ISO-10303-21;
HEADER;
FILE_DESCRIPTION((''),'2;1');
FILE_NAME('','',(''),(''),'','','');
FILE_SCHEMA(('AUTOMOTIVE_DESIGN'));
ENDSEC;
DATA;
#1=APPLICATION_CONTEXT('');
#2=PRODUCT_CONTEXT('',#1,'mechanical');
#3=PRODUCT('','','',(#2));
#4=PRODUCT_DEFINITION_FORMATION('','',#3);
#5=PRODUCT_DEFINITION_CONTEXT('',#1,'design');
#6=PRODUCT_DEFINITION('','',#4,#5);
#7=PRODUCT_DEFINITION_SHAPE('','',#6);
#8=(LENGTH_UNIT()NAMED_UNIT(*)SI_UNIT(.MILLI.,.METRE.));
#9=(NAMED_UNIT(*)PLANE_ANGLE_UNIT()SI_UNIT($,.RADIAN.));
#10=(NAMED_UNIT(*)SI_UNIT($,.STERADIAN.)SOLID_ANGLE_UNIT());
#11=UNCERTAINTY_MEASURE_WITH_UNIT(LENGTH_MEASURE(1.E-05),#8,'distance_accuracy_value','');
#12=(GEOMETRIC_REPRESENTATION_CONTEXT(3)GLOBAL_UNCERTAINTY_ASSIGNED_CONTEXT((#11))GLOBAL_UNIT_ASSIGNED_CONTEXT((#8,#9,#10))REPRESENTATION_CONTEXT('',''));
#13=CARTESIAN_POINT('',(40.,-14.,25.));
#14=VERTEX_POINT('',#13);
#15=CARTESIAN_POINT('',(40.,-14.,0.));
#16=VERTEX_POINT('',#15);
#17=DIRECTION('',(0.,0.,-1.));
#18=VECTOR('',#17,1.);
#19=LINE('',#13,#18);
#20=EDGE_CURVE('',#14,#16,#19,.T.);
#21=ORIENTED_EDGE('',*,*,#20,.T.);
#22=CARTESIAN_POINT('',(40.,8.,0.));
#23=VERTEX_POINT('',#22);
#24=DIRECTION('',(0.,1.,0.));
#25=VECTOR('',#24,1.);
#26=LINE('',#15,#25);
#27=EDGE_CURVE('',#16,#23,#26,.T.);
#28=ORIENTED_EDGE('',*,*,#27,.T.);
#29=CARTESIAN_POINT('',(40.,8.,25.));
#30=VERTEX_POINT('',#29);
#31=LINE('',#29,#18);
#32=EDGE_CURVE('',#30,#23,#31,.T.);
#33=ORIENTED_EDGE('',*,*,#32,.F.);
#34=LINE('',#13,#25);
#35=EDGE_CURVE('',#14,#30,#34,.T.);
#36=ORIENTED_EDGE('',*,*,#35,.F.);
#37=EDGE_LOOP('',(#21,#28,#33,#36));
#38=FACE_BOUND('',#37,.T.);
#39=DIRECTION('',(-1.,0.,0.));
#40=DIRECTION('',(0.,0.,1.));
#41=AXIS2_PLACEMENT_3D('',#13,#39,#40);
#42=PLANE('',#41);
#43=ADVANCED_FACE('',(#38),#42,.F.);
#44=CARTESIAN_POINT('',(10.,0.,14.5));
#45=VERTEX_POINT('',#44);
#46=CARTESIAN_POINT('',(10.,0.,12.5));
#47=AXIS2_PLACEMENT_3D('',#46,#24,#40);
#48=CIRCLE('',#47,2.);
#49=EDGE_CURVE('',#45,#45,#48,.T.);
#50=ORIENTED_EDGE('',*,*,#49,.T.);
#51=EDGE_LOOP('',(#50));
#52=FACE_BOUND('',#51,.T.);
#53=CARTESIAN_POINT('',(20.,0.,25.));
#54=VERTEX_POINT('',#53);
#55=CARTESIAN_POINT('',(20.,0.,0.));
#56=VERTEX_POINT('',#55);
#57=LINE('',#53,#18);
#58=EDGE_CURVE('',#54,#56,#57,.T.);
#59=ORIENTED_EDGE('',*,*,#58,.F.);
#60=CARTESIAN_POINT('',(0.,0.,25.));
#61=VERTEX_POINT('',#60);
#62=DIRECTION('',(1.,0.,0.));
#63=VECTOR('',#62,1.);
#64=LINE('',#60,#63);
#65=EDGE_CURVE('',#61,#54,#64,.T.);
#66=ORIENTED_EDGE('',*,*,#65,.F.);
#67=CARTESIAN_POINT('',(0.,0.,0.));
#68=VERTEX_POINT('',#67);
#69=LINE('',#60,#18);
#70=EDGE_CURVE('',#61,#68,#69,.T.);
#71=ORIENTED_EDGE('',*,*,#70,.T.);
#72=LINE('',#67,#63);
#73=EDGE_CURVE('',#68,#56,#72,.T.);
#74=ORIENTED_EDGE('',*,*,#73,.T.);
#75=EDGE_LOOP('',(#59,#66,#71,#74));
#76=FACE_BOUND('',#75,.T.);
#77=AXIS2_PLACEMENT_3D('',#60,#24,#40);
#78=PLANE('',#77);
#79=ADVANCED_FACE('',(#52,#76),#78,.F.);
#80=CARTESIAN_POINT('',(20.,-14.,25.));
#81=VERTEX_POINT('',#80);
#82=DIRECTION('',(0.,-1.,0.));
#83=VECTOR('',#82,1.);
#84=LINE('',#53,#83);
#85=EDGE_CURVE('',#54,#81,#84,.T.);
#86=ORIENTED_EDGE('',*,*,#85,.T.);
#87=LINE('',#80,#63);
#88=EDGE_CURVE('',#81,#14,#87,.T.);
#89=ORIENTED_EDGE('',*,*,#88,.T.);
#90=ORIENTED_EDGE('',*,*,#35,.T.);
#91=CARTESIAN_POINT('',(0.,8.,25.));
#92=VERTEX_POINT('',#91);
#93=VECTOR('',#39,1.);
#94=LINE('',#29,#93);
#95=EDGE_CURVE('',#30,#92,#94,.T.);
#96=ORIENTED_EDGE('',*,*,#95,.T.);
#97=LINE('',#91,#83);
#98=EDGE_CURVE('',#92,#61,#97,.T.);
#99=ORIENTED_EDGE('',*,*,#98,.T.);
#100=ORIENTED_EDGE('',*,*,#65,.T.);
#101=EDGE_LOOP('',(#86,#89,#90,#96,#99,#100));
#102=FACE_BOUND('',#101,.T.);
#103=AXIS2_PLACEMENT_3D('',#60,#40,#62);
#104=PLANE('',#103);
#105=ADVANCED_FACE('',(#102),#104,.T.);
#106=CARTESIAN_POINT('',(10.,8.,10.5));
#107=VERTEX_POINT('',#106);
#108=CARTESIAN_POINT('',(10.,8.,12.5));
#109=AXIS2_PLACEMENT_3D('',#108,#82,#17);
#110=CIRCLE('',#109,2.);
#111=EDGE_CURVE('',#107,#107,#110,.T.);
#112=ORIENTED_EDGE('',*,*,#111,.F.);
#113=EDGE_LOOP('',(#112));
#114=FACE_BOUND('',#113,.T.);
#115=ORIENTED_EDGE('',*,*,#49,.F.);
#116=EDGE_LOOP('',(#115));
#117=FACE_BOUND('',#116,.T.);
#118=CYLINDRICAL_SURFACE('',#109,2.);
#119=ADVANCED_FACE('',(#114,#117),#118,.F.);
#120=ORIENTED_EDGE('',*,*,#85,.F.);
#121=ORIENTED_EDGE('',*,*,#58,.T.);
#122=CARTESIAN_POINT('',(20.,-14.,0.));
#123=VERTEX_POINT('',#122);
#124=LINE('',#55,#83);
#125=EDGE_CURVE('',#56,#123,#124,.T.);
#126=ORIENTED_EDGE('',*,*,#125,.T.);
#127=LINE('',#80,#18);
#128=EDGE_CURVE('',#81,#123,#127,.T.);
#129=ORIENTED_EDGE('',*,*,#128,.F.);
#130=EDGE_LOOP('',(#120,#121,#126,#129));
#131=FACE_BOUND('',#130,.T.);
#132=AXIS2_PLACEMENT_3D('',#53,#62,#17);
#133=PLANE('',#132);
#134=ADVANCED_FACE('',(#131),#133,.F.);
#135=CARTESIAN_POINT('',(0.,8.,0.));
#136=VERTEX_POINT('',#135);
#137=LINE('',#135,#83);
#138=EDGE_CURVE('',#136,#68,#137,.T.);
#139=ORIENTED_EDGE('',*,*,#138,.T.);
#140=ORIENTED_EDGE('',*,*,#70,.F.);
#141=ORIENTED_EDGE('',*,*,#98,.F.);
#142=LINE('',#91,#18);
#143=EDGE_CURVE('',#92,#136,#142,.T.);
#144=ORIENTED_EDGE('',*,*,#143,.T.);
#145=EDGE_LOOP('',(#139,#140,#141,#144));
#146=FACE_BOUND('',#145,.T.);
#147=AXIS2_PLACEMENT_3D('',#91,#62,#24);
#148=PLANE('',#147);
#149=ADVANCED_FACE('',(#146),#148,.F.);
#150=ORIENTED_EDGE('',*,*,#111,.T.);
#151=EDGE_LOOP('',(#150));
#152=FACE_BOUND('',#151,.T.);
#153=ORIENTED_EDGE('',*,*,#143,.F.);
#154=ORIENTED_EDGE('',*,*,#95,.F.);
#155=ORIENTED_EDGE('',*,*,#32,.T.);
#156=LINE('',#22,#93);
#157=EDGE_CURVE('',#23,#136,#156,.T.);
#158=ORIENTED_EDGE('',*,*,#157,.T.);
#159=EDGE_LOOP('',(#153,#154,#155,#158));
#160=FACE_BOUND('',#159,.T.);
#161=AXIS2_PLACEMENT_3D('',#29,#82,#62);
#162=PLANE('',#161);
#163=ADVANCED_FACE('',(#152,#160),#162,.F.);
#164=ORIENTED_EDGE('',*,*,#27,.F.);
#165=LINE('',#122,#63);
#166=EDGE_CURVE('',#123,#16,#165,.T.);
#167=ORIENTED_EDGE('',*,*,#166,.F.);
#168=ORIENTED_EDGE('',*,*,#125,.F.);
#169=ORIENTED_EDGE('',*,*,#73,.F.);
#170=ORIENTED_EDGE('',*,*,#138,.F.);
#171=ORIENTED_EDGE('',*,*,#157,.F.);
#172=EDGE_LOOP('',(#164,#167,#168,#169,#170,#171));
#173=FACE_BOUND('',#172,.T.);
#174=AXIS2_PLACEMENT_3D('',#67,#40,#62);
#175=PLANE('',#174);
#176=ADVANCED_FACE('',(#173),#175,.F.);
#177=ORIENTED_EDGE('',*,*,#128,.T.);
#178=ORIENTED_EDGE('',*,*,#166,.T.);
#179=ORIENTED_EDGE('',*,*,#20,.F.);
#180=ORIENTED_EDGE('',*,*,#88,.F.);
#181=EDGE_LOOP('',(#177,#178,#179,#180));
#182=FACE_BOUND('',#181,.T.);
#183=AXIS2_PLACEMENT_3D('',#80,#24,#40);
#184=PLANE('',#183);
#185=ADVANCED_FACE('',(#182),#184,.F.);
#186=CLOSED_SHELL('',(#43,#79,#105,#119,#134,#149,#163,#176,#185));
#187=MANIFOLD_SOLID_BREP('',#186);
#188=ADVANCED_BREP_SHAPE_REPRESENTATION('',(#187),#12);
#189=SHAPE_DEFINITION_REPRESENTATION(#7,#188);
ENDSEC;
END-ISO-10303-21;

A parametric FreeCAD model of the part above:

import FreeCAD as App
import Part
import Sketcher

V = App.Vector

doc = App.newDocument("Part")
body = doc.addObject("PartDesign::Body", "Body")

# Sketch on XY plane
sketch1 = doc.addObject("Sketcher::SketchObject", "Sketch")
body.addObject(sketch1)
sketch1.AttachmentSupport = (doc.XY_Plane, [""])
sketch1.MapMode = "FlatFace"
sketch1.addGeometry(Part.LineSegment(V(0, 0, 0), V(20, 0, 0)), False)
sketch1.addGeometry(Part.LineSegment(V(20, 0, 0), V(20, -14, 0)), False)
sketch1.addGeometry(Part.LineSegment(V(20, -14, 0), V(40, -14, 0)), False)
sketch1.addGeometry(Part.LineSegment(V(40, -14, 0), V(40, 8, 0)), False)
sketch1.addGeometry(Part.LineSegment(V(40, 8, 0), V(0, 8, 0)), False)
sketch1.addGeometry(Part.LineSegment(V(0, 8, 0), V(0, 0, 0)), False)
sketch1.addConstraint(Sketcher.Constraint("Coincident", 0, 2, 1, 1))
sketch1.addConstraint(Sketcher.Constraint("Coincident", 1, 2, 2, 1))
sketch1.addConstraint(Sketcher.Constraint("Coincident", 2, 2, 3, 1))
sketch1.addConstraint(Sketcher.Constraint("Coincident", 3, 2, 4, 1))
sketch1.addConstraint(Sketcher.Constraint("Coincident", 4, 2, 5, 1))
sketch1.addConstraint(Sketcher.Constraint("Coincident", 5, 2, 0, 1))
sketch1.addConstraint(Sketcher.Constraint("Horizontal", 0))
sketch1.addConstraint(Sketcher.Constraint("Vertical", 1))
sketch1.addConstraint(Sketcher.Constraint("Horizontal", 2))
sketch1.addConstraint(Sketcher.Constraint("Vertical", 3))
sketch1.addConstraint(Sketcher.Constraint("Horizontal", 4))
sketch1.addConstraint(Sketcher.Constraint("Vertical", 5))
sketch1.addConstraint(Sketcher.Constraint("Coincident", 5, 2, -1, 1))
sketch1.addConstraint(Sketcher.Constraint("Equal", 0, 2))
sketch1.addConstraint(Sketcher.Constraint("DistanceX", 0, 1, 0, 2, 20.0))
sketch1.addConstraint(Sketcher.Constraint("DistanceY", 1, 2, 1, 1, 14.0))
sketch1.addConstraint(Sketcher.Constraint("DistanceY", 3, 1, 3, 2, 22.0))
pad1 = doc.addObject("PartDesign::Pad", "Pad")
body.addObject(pad1)
pad1.Profile = sketch1
pad1.Length = 25

# Sketch on XZ plane
sketch2 = doc.addObject("Sketcher::SketchObject", "Sketch001")
body.addObject(sketch2)
sketch2.AttachmentSupport = (doc.XZ_Plane, [""])
sketch2.MapMode = "FlatFace"
sketch2.addGeometry(Part.Circle(V(10, 12.5, 0), V(0, 0, 1), 2), False)
sketch2.addConstraint(Sketcher.Constraint("Diameter", 0, 4.0))
sketch2.addConstraint(Sketcher.Constraint("DistanceX", -1, 1, 0, 3, 10.0))
sketch2.addConstraint(Sketcher.Constraint("DistanceY", -1, 1, 0, 3, 12.5))
pocket1 = doc.addObject("PartDesign::Pocket", "Pocket")
body.addObject(pocket1)
pocket1.Profile = sketch2
pocket1.Type = "ThroughAll"
pocket1.Midplane = True

doc.recompute()
